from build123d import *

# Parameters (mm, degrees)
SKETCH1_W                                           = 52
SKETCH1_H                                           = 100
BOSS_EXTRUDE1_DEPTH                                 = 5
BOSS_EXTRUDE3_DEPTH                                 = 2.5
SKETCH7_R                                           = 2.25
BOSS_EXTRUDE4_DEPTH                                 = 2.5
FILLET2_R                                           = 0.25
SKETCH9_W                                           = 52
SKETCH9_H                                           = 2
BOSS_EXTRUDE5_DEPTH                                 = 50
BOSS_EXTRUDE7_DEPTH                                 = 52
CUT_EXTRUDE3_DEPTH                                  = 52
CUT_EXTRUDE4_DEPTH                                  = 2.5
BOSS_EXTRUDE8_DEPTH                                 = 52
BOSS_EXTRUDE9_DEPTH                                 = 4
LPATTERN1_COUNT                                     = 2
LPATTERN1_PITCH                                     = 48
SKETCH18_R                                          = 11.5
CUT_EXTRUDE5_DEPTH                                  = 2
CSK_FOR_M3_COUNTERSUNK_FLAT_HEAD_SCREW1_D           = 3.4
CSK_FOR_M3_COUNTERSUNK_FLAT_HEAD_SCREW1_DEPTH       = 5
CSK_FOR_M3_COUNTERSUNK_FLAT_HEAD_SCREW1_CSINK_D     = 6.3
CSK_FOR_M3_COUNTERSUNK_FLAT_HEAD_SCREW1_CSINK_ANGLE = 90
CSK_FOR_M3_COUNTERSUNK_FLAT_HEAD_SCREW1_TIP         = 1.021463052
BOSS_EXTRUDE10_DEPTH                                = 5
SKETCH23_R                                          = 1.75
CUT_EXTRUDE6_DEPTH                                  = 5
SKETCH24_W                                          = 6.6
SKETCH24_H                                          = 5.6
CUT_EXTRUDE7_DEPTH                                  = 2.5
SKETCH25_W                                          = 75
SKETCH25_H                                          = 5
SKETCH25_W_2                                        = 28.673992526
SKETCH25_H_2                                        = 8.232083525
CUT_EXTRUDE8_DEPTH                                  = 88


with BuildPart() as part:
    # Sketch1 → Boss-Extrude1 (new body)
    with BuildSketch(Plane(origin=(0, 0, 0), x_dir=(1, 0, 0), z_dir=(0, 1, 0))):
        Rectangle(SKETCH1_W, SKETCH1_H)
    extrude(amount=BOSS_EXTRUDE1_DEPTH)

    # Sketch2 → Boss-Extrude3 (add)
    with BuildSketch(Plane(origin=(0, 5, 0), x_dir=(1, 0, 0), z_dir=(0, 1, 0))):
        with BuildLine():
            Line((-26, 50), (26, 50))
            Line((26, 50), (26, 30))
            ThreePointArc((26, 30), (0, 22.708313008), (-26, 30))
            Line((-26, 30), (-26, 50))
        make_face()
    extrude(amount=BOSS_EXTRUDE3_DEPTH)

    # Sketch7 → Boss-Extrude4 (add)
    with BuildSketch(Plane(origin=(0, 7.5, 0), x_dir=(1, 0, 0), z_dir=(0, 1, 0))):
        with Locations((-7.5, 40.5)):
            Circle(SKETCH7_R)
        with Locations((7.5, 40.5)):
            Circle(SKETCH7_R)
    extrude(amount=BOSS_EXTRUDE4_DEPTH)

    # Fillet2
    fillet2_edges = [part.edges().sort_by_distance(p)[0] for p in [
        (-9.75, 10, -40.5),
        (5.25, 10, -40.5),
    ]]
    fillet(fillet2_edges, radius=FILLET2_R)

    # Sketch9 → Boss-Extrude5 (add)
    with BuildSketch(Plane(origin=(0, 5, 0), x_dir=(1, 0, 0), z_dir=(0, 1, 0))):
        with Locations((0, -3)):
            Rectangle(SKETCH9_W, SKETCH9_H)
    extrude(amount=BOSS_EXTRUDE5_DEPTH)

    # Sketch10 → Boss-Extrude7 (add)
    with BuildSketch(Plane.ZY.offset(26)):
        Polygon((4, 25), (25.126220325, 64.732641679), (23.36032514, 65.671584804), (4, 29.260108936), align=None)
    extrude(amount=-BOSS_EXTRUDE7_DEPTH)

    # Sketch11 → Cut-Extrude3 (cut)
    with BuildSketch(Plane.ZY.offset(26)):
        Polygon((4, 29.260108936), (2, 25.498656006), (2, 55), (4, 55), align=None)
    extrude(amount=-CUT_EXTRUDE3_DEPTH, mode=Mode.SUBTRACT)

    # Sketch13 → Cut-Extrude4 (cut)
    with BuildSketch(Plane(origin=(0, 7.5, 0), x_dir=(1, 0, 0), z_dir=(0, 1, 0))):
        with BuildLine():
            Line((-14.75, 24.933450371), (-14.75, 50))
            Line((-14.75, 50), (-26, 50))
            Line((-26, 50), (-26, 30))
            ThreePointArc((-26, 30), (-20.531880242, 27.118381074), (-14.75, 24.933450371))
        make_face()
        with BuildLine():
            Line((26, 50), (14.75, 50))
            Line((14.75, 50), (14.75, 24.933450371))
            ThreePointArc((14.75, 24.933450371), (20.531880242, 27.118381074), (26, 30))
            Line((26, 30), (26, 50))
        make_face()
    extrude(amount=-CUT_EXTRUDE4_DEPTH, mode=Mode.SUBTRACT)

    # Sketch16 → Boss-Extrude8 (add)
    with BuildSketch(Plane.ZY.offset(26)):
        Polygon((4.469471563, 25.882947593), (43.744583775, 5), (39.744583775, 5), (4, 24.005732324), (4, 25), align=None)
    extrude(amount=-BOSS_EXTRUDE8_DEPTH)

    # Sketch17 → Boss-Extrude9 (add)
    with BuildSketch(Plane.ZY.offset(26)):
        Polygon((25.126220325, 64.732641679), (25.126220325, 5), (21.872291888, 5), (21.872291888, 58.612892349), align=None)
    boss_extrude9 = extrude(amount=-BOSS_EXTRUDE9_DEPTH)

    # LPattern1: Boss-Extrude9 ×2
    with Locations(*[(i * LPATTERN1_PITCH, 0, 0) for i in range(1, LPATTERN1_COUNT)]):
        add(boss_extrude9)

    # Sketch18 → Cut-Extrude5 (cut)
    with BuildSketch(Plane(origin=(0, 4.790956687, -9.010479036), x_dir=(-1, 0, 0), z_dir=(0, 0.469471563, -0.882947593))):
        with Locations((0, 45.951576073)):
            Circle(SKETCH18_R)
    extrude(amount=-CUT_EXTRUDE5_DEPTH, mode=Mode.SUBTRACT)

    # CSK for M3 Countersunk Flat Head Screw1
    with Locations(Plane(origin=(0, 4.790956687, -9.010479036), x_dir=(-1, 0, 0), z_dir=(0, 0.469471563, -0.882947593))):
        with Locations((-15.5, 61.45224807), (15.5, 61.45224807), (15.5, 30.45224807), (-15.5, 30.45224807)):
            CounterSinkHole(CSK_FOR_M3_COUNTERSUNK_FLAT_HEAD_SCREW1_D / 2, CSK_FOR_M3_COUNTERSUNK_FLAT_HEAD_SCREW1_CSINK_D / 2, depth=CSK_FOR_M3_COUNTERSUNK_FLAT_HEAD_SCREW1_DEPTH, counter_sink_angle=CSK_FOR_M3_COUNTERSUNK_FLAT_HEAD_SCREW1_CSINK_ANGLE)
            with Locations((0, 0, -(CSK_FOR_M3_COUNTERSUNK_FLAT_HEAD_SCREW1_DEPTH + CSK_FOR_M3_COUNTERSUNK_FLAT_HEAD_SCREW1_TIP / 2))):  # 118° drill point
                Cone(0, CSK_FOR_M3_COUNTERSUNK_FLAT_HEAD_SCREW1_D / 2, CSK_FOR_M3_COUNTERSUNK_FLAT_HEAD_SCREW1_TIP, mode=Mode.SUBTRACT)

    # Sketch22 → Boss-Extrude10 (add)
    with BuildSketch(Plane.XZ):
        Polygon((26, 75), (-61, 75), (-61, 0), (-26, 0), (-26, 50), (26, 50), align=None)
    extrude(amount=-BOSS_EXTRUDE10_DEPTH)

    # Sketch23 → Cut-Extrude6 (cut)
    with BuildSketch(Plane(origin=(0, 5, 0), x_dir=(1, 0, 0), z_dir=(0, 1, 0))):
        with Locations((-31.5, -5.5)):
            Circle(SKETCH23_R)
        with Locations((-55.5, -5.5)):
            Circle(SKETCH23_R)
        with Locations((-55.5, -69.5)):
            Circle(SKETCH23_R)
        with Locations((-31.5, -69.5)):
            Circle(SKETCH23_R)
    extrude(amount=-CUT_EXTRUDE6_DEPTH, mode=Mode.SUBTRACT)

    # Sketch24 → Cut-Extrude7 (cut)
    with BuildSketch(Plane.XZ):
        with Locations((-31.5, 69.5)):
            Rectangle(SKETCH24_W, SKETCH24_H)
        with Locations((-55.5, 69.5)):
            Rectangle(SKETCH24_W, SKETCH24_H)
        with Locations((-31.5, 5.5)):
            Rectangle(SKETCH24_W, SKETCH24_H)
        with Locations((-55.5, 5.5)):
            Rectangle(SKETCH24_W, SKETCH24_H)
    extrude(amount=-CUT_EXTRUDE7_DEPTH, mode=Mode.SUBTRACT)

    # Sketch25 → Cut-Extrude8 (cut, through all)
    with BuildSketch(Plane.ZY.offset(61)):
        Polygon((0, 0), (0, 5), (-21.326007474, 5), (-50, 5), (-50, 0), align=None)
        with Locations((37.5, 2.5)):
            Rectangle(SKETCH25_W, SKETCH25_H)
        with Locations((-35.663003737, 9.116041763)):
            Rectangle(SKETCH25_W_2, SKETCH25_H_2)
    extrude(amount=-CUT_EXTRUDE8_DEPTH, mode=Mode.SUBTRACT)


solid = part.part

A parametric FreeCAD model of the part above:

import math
import FreeCAD as App
import Part
import Sketcher
from FreeCAD import Vector
Q = App.Units.Quantity


def edges_at(feature, points):
    """Names of the edges that pass closest to the given points."""
    edges = feature.Shape.Edges
    near = lambda p: min(range(len(edges)), key=lambda i: edges[i].distToShape(Part.Vertex(*p))[0])
    return sorted({f"Edge{near(p) + 1}" for p in points})


def add_polygon(sketch, points):
    """Adds a closed chain of lines whose ends are joined by coincident constraints."""
    first, n = sketch.GeometryCount, len(points)
    for a, b in zip(points, points[1:] + points[:1]):
        sketch.addGeometry(Part.LineSegment(App.Vector(*a, 0), App.Vector(*b, 0)), False)
    for i in range(n):
        sketch.addConstraint(Sketcher.Constraint("Coincident", first + i, 2, first + (i + 1) % n, 1))

doc = App.newDocument("Part")
body = doc.addObject("PartDesign::Body", "Body")

# Sketch on XZ plane
sketch1 = body.newObject("Sketcher::SketchObject", "Sketch")
sketch1.AttachmentSupport = (doc.getObject("XZ_Plane"), [""])
sketch1.MapMode = "FlatFace"
add_polygon(sketch1, [(-26, -50), (-26, 50), (26, 50), (26, -50)])  # lines 0-3
sketch1.addConstraint([
    Sketcher.Constraint("Vertical", 0),
    Sketcher.Constraint("Horizontal", 1),
    Sketcher.Constraint("Vertical", 2),
    Sketcher.Constraint("Horizontal", 3),
    Sketcher.Constraint("Symmetric", 0, 2, 2, 2, -1, 1),
    Sketcher.Constraint("DistanceX", 1, 1, 1, 2, 52.0),
    Sketcher.Constraint("DistanceY", 0, 1, 0, 2, 100.0),
])
pad1 = body.newObject("PartDesign::Pad", "Pad")
pad1.Profile = sketch1
pad1.Length = 5
pad1.Reversed = True

# Sketch on XZ plane
sketch2 = body.newObject("Sketcher::SketchObject", "Sketch001")
sketch2.AttachmentSupport = (doc.getObject("XZ_Plane"), [""])
sketch2.MapMode = "FlatFace"
sketch2.AttachmentOffset = App.Placement(Vector(0, 0, -5), App.Rotation())
sketch2.addGeometry([
    Part.LineSegment(Vector(26, -50, 0), Vector(-26, -50, 0)),
    Part.LineSegment(Vector(-26, -50, 0), Vector(-26, -30, 0)),
    Part.ArcOfCircle(Part.Circle(Vector(0, -73, 0), Vector(0, 0, 1), 50), math.radians(59), math.radians(121)),
    Part.LineSegment(Vector(26, -30, 0), Vector(26, -50, 0)),
], False)
sketch2.addConstraint([
    Sketcher.Constraint("Coincident", 0, 2, 1, 1),
    Sketcher.Constraint("Coincident", 1, 2, 2, 2),
    Sketcher.Constraint("Coincident", 2, 1, 3, 1),
    Sketcher.Constraint("Coincident", 3, 2, 0, 1),
    Sketcher.Constraint("Horizontal", 0),
    Sketcher.Constraint("Vertical", 1),
    Sketcher.Constraint("Vertical", 3),
    Sketcher.Constraint("Symmetric", 1, 2, 2, 1, -2),
    Sketcher.Constraint("Radius", 2, 50.0),
    Sketcher.Constraint("DistanceX", 0, 2, 0, 1, 52.0),
    Sketcher.Constraint("DistanceY", 1, 1, 1, 2, 20.0),
    Sketcher.Constraint("DistanceY", 0, 2, -1, 1, 50.0),
])
pad2 = body.newObject("PartDesign::Pad", "Pad001")
pad2.Profile = sketch2
pad2.Length = 2.5
pad2.Reversed = True

# Sketch on XZ plane
sketch3 = body.newObject("Sketcher::SketchObject", "Sketch002")
sketch3.AttachmentSupport = (doc.getObject("XZ_Plane"), [""])
sketch3.MapMode = "FlatFace"
sketch3.AttachmentOffset = App.Placement(Vector(0, 0, -7.5), App.Rotation())
sketch3.addGeometry([
    Part.Circle(Vector(-7.5, -40.5, 0), Vector(0, 0, 1), 2.2),
    Part.Circle(Vector(7.5, -40.5, 0), Vector(0, 0, 1), 2.2),
], False)
sketch3.addConstraint([
    Sketcher.Constraint("Equal", 0, 1),
    Sketcher.Constraint("Symmetric", 0, 3, 1, 3, -2),
    Sketcher.Constraint("Diameter", 0, 4.5),
    Sketcher.Constraint("DistanceX", 0, 3, 1, 3, 15.0),
    Sketcher.Constraint("DistanceY", 0, 3, -1, 1, 40.5),
])
pad3 = body.newObject("PartDesign::Pad", "Pad002")
pad3.Profile = sketch3
pad3.Length = 2.5
pad3.Reversed = True
doc.recompute()

fillet = body.newObject("PartDesign::Fillet", "Fillet")
fillet.Base = (pad3, edges_at(pad3, [(-9.75, 10, -40.5), (5.25, 10, -40.5)]))
fillet.Radius = 0.25

# Sketch on XZ plane
sketch4 = body.newObject("Sketcher::SketchObject", "Sketch003")
sketch4.AttachmentSupport = (doc.getObject("XZ_Plane"), [""])
sketch4.MapMode = "FlatFace"
sketch4.AttachmentOffset = App.Placement(Vector(0, 0, -5), App.Rotation())
add_polygon(sketch4, [(-26, 2), (-26, 4), (26, 4), (26, 2)])  # lines 0-3
sketch4.addConstraint([
    Sketcher.Constraint("Vertical", 0),
    Sketcher.Constraint("Horizontal", 1),
    Sketcher.Constraint("Vertical", 2),
    Sketcher.Constraint("Horizontal", 3),
    Sketcher.Constraint("DistanceX", 1, 1, 1, 2, 52.0),
    Sketcher.Constraint("DistanceY", 0, 1, 0, 2, 2.0),
    Sketcher.Constraint("DistanceX", 0, 2, -1, 1, 26.0),
    Sketcher.Constraint("DistanceY", -1, 1, 0, 2, 4.0),
])
pad4 = body.newObject("PartDesign::Pad", "Pad003")
pad4.Profile = sketch4
pad4.Length = 50
pad4.Reversed = True

# Sketch on YZ plane
sketch5 = body.newObject("Sketcher::SketchObject", "Sketch004")
sketch5.AttachmentSupport = (doc.getObject("YZ_Plane"), [""])
sketch5.MapMode = "FlatFace"
sketch5.AttachmentOffset = App.Placement(Vector(0, 0, -26), App.Rotation())
add_polygon(sketch5, [(25, 4), (64.7, 25.1), (65.7, 23.4), (29.3, 4)])  # lines 0-3
sketch5.addConstraint([
    Sketcher.Constraint("Horizontal", 3),
    Sketcher.Constraint("Perpendicular", 0, 1),
    Sketcher.Constraint("Perpendicular", 1, 2),
    Sketcher.Constraint("Angle", 0, Q("28 deg")),
    Sketcher.Constraint("Distance", 0, 45.0),
    Sketcher.Constraint("Distance", 1, 2.0),
    Sketcher.Constraint("DistanceY", -1, 1, 2, 2, 4.0),
    Sketcher.Constraint("DistanceX", -1, 1, 3, 2, 25.0),
])
pad5 = body.newObject("PartDesign::Pad", "Pad004")
pad5.Profile = sketch5
pad5.Length = 52

# Sketch on YZ plane
sketch6 = body.newObject("Sketcher::SketchObject", "Sketch005")
sketch6.AttachmentSupport = (doc.getObject("YZ_Plane"), [""])
sketch6.MapMode = "FlatFace"
sketch6.AttachmentOffset = App.Placement(Vector(0, 0, -26), App.Rotation())
add_polygon(sketch6, [(25.5, 2), (29.3, 4), (55, 4), (55, 2)])  # lines 0-3
sketch6.addConstraint([
    Sketcher.Constraint("Horizontal", 1),
    Sketcher.Constraint("Vertical", 2),
    Sketcher.Constraint("Horizontal", 3),
    Sketcher.Constraint("DistanceY", 2, 2, 2, 1, 2.0),
    Sketcher.Constraint("Angle", 0, Q("28 deg")),
    Sketcher.Constraint("DistanceY", -1, 1, 0, 2, 4.0),
    Sketcher.Constraint("DistanceX", -1, 1, 1, 2, 55.0),
    Sketcher.Constraint("DistanceX", 1, 1, 1, 2, 25.739891),
])
pocket1 = body.newObject("PartDesign::Pocket", "Pocket")
pocket1.Profile = sketch6
pocket1.Length = 52
pocket1.Reversed = True

# Sketch on XZ plane
sketch7 = body.newObject("Sketcher::SketchObject", "Sketch006")
sketch7.AttachmentSupport = (doc.getObject("XZ_Plane"), [""])
sketch7.MapMode = "FlatFace"
sketch7.AttachmentOffset = App.Placement(Vector(0, 0, -7.5), App.Rotation())
sketch7.addGeometry([
    Part.LineSegment(Vector(-15, -25, 0), Vector(-15, -50, 0)),  # 0
    Part.LineSegment(Vector(-15, -50, 0), Vector(-26, -50, 0)),  # 1
    Part.LineSegment(Vector(-26, -50, 0), Vector(-26, -30, 0)),  # 2
    Part.ArcOfCircle(Part.Circle(Vector(0, -73, 0), Vector(0, 0, 1), 50), math.radians(107.16), math.radians(121.33)),  # 3
    Part.LineSegment(Vector(26, -50, 0), Vector(15, -50, 0)),  # 4
    Part.LineSegment(Vector(15, -50, 0), Vector(15, -25, 0)),  # 5
    Part.ArcOfCircle(Part.Circle(Vector(0, -73, 0), Vector(0, 0, 1), 50), math.radians(58.67), math.radians(72.84)),  # 6
    Part.LineSegment(Vector(26, -30, 0), Vector(26, -50, 0)),  # 7
], False)
sketch7.addConstraint([
    Sketcher.Constraint("Coincident", 0, 2, 1, 1),
    Sketcher.Constraint("Coincident", 1, 2, 2, 1),
    Sketcher.Constraint("Coincident", 2, 2, 3, 2),
    Sketcher.Constraint("Coincident", 3, 1, 0, 1),
    Sketcher.Constraint("Coincident", 4, 2, 5, 1),
    Sketcher.Constraint("Coincident", 5, 2, 6, 2),
    Sketcher.Constraint("Coincident", 6, 1, 7, 1),
    Sketcher.Constraint("Coincident", 7, 2, 4, 1),
    Sketcher.Constraint("Vertical", 0),
    Sketcher.Constraint("Horizontal", 1),
    Sketcher.Constraint("Vertical", 2),
    Sketcher.Constraint("Horizontal", 4),
    Sketcher.Constraint("Vertical", 5),
    Sketcher.Constraint("Vertical", 7),
    Sketcher.Constraint("Coincident", 6, 3, 3, 3),
    Sketcher.Constraint("Equal", 3, 6),
    Sketcher.Constraint("Symmetric", 0, 2, 4, 2, -2),
    Sketcher.Constraint("Symmetric", 2, 2, 6, 1, -2),
    Sketcher.Constraint("Radius", 3, 50.0),
    Sketcher.Constraint("DistanceY", 2, 1, 2, 2, 20.0),
    Sketcher.Constraint("DistanceY", 0, 2, -1, 1, 50.0),
    Sketcher.Constraint("DistanceX", 1, 2, -1, 1, 26.0),
    Sketcher.Constraint("DistanceX", 1, 2, 1, 1, 11.25),
])
pocket2 = body.newObject("PartDesign::Pocket", "Pocket001")
pocket2.Profile = sketch7
pocket2.Length = 2.5
pocket2.Reversed = True

# Sketch on YZ plane
sketch8 = body.newObject("Sketcher::SketchObject", "Sketch007")
sketch8.AttachmentSupport = (doc.getObject("YZ_Plane"), [""])
sketch8.MapMode = "FlatFace"
sketch8.AttachmentOffset = App.Placement(Vector(0, 0, -26), App.Rotation())
add_polygon(sketch8, [(5, 43.7), (25.9, 4.5), (25, 4), (24, 4), (5, 39.7)])  # lines 0-4
sketch8.addConstraint([
    Sketcher.Constraint("Horizontal", 2),
    Sketcher.Constraint("Vertical", 4),
    Sketcher.Constraint("Perpendicular", 0, 1),
    Sketcher.Constraint("Perpendicular", 1, 3),
    Sketcher.Constraint("DistanceY", 4, 1, 4, 2, 4.0),
    Sketcher.Constraint("Angle", 0, Q("-62 deg")),
    Sketcher.Constraint("Distance", 1, 1.0),
    Sketcher.Constraint("DistanceX", -1, 1, 1, 2, 25.0),
    Sketcher.Constraint("DistanceY", -1, 1, 1, 2, 4.0),
    Sketcher.Constraint("DistanceX", -1, 1, 3, 2, 5.0),
])
pad6 = body.newObject("PartDesign::Pad", "Pad005")
pad6.Profile = sketch8
pad6.Length = 52

# Sketch on YZ plane
sketch9 = body.newObject("Sketcher::SketchObject", "Sketch008")
sketch9.AttachmentSupport = (doc.getObject("YZ_Plane"), [""])
sketch9.MapMode = "FlatFace"
sketch9.AttachmentOffset = App.Placement(Vector(0, 0, -26), App.Rotation())
add_polygon(sketch9, [(5, 25.1), (64.7, 25.1), (58.6, 21.9), (5, 21.9)])  # lines 0-3
sketch9.addConstraint([
    Sketcher.Constraint("Horizontal", 0),
    Sketcher.Constraint("Horizontal", 2),
    Sketcher.Constraint("Vertical", 3),
    Sketcher.Constraint("Angle", 1, Q("-152 deg")),
    Sketcher.Constraint("DistanceX", -1, 1, 2, 2, 5.0),
    Sketcher.Constraint("DistanceX", 0, 1, 0, 2, 59.732642),
    Sketcher.Constraint("DistanceY", 3, 1, 3, 2, 3.253928),
    Sketcher.Constraint("DistanceY", -1, 1, 0, 2, 25.12622),
])
pad7 = body.newObject("PartDesign::Pad", "Pad006")
pad7.Profile = sketch9
pad7.Length = 4
doc.recompute()

linearpattern = body.newObject("PartDesign::LinearPattern", "LinearPattern")
linearpattern.Originals = [pad7]
linearpattern.Direction = (doc.getObject("X_Axis"), [""])
linearpattern.Mode = "offset"
linearpattern.Offset = 48
linearpattern.Occurrences = 2
body.Tip = linearpattern

# Sketch on an angled plane
sketch10 = body.newObject("Sketcher::SketchObject", "Sketch009")
sketch10.Placement = App.Placement(Vector(0, 4.790957, -9.010479), App.Rotation(Vector(-1, 0, 0), Vector(0, 0.882947593, 0.469471563), Vector(0, 0.469471563, -0.882947593), "ZXY"))
sketch10.addGeometry(Part.Circle(Vector(0, 46, 0), Vector(0, 0, 1), 12), False)
sketch10.addConstraint([
    Sketcher.Constraint("PointOnObject", 0, 3, -2),
    Sketcher.Constraint("Diameter", 0, 23.0),
    Sketcher.Constraint("DistanceY", -1, 1, 0, 3, 45.951576),
])
pocket3 = body.newObject("PartDesign::Pocket", "Pocket002")
pocket3.Profile = sketch10
pocket3.Length = 2

# Sketch on an angled plane
sketch11 = body.newObject("Sketcher::SketchObject", "Sketch010")
sketch11.Placement = App.Placement(Vector(0, 4.790957, -9.010479), App.Rotation(Vector(-1, 0, 0), Vector(0, 0.882947593, 0.469471563), Vector(0, 0.469471563, -0.882947593), "ZXY"))
sketch11.addGeometry([
    Part.Circle(Vector(-15.5, 61.5, 0), Vector(0, 0, 1), 1.7),
    Part.Circle(Vector(15.5, 61.5, 0), Vector(0, 0, 1), 1.7),
    Part.Circle(Vector(15.5, 30.5, 0), Vector(0, 0, 1), 1.7),
    Part.Circle(Vector(-15.5, 30.5, 0), Vector(0, 0, 1), 1.7),
], False)
sketch11.addConstraint([
    Sketcher.Constraint("Equal", 0, 1),
    Sketcher.Constraint("Equal", 1, 2),
    Sketcher.Constraint("Equal", 2, 3),
    Sketcher.Constraint("Symmetric", 0, 3, 1, 3, -2),
    Sketcher.Constraint("Symmetric", 2, 3, 3, 3, -2),
    Sketcher.Constraint("Vertical", 1, 3, 2, 3),
    Sketcher.Constraint("Diameter", 0, 3.4),
    Sketcher.Constraint("DistanceX", 0, 3, 1, 3, 31.0),
    Sketcher.Constraint("DistanceY", 2, 3, 1, 3, 31.0),
    Sketcher.Constraint("DistanceY", -1, 1, 0, 3, 61.452248),
])
doc.recompute()
hole = body.newObject("PartDesign::Hole", "Hole")
hole.Profile = sketch11
hole.ThreadType = "None"
hole.Diameter = 3.4
hole.DepthType = "Dimension"
hole.Depth = 5
hole.DrillPoint = "Angled"
hole.DrillPointAngle = 118
hole.HoleCutType = "Countersink"
hole.HoleCutDiameter = 6.3
hole.HoleCutCountersinkAngle = 90

# Sketch on XZ plane
sketch12 = body.newObject("Sketcher::SketchObject", "Sketch011")
sketch12.AttachmentSupport = (doc.getObject("XZ_Plane"), [""])
sketch12.MapMode = "FlatFace"
add_polygon(sketch12, [(26, 75), (-61, 75), (-61, 0), (-26, 0), (-26, 50), (26, 50)])  # lines 0-5
sketch12.addConstraint([
    Sketcher.Constraint("Horizontal", 0),
    Sketcher.Constraint("Vertical", 1),
    Sketcher.Constraint("Horizontal", 2),
    Sketcher.Constraint("Vertical", 3),
    Sketcher.Constraint("Horizontal", 4),
    Sketcher.Constraint("Vertical", 5),
    Sketcher.Constraint("PointOnObject", 1, 2, -1),
    Sketcher.Constraint("DistanceX", 0, 2, 0, 1, 87.0),
    Sketcher.Constraint("DistanceX", 2, 1, 2, 2, 35.0),
    Sketcher.Constraint("DistanceY", 1, 2, 1, 1, 75.0),
    Sketcher.Constraint("DistanceY", 3, 1, 3, 2, 50.0),
    Sketcher.Constraint("DistanceX", 0, 2, -1, 1, 61.0),
])
pad8 = body.newObject("PartDesign::Pad", "Pad007")
pad8.Profile = sketch12
pad8.Length = 5
pad8.Reversed = True

# Sketch on XZ plane
sketch13 = body.newObject("Sketcher::SketchObject", "Sketch012")
sketch13.AttachmentSupport = (doc.getObject("XZ_Plane"), [""])
sketch13.MapMode = "FlatFace"
sketch13.AttachmentOffset = App.Placement(Vector(0, 0, -5), App.Rotation())
sketch13.addGeometry([
    Part.Circle(Vector(-31.5, 5.5, 0), Vector(0, 0, 1), 1.8),
    Part.Circle(Vector(-55.5, 5.5, 0), Vector(0, 0, 1), 1.8),
    Part.Circle(Vector(-55.5, 69.5, 0), Vector(0, 0, 1), 1.8),
    Part.Circle(Vector(-31.5, 69.5, 0), Vector(0, 0, 1), 1.8),
], False)
sketch13.addConstraint([
    Sketcher.Constraint("Equal", 0, 1),
    Sketcher.Constraint("Equal", 1, 2),
    Sketcher.Constraint("Equal", 2, 3),
    Sketcher.Constraint("Horizontal", 0, 3, 1, 3),
    Sketcher.Constraint("Horizontal", 2, 3, 3, 3),
    Sketcher.Constraint("Vertical", 1, 3, 2, 3),
    Sketcher.Constraint("Vertical", 0, 3, 3, 3),
    Sketcher.Constraint("Diameter", 0, 3.5),
    Sketcher.Constraint("DistanceX", 1, 3, 0, 3, 24.0),
    Sketcher.Constraint("DistanceY", 1, 3, 2, 3, 64.0),
    Sketcher.Constraint("DistanceX", 0, 3, -1, 1, 31.5),
    Sketcher.Constraint("DistanceY", -1, 1, 0, 3, 5.5),
])
pocket4 = body.newObject("PartDesign::Pocket", "Pocket003")
pocket4.Profile = sketch13
pocket4.Length = 5
pocket4.Reversed = True

# Sketch on XZ plane
sketch14 = body.newObject("Sketcher::SketchObject", "Sketch013")
sketch14.AttachmentSupport = (doc.getObject("XZ_Plane"), [""])
sketch14.MapMode = "FlatFace"
add_polygon(sketch14, [(-35, 72), (-35, 67), (-28, 67), (-28, 72)])  # lines 0-3
add_polygon(sketch14, [(-59, 72), (-59, 67), (-52, 67), (-52, 72)])  # lines 4-7
add_polygon(sketch14, [(-35, 8), (-35, 3), (-28, 3), (-28, 8)])  # lines 8-11
add_polygon(sketch14, [(-59, 8), (-59, 3), (-52, 3), (-52, 8)])  # lines 12-15
sketch14.addConstraint([
    Sketcher.Constraint("Vertical", 0),
    Sketcher.Constraint("Horizontal", 1),
    Sketcher.Constraint("Vertical", 2),
    Sketcher.Constraint("Horizontal", 3),
    Sketcher.Constraint("Vertical", 4),
    Sketcher.Constraint("Horizontal", 5),
    Sketcher.Constraint("Vertical", 6),
    Sketcher.Constraint("Horizontal", 7),
    Sketcher.Constraint("Vertical", 8),
    Sketcher.Constraint("Horizontal", 9),
    Sketcher.Constraint("Vertical", 10),
    Sketcher.Constraint("Horizontal", 11),
    Sketcher.Constraint("Vertical", 12),
    Sketcher.Constraint("Horizontal", 13),
    Sketcher.Constraint("Vertical", 14),
    Sketcher.Constraint("Horizontal", 15),
    Sketcher.Constraint("Horizontal", 1, 2, 4, 2),
    Sketcher.Constraint("Horizontal", 3, 2, 6, 2),
    Sketcher.Constraint("Horizontal", 9, 2, 12, 2),
    Sketcher.Constraint("Horizontal", 11, 2, 14, 2),
    Sketcher.Constraint("Vertical", 3, 2, 8, 2),
    Sketcher.Constraint("Vertical", 2, 2, 9, 2),
    Sketcher.Constraint("Vertical", 7, 2, 12, 2),
    Sketcher.Constraint("Vertical", 6, 2, 13, 2),
    Sketcher.Constraint("Equal", 3, 5),
    Sketcher.Constraint("Equal", 6, 8),
    Sketcher.Constraint("DistanceX", 1, 1, 1, 2, 6.6),
    Sketcher.Constraint("DistanceY", 0, 2, 0, 1, 5.6),
    Sketcher.Constraint("DistanceX", 4, 2, 0, 2, 24.0),
    Sketcher.Constraint("DistanceY", 8, 2, 0, 2, 64.0),
    Sketcher.Constraint("DistanceX", 0, 2, -1, 1, 34.8),
    Sketcher.Constraint("DistanceY", -1, 1, 0, 2, 66.7),
])
pocket5 = body.newObject("PartDesign::Pocket", "Pocket004")
pocket5.Profile = sketch14
pocket5.Length = 2.5

# Sketch on YZ plane
sketch15 = body.newObject("Sketcher::SketchObject", "Sketch014")
sketch15.AttachmentSupport = (doc.getObject("YZ_Plane"), [""])
sketch15.MapMode = "FlatFace"
sketch15.AttachmentOffset = App.Placement(Vector(0, 0, -61), App.Rotation())
add_polygon(sketch15, [(0, -50), (0, 75), (5, 75), (5, -21), (13, -21), (13, -50)])  # lines 0-5
sketch15.addConstraint([
    Sketcher.Constraint("Vertical", 0),
    Sketcher.Constraint("Horizontal", 1),
    Sketcher.Constraint("Vertical", 2),
    Sketcher.Constraint("Horizontal", 3),
    Sketcher.Constraint("Vertical", 4),
    Sketcher.Constraint("Horizontal", 5),
    Sketcher.Constraint("PointOnObject", 0, 2, -2),
    Sketcher.Constraint("DistanceX", 1, 1, 1, 2, 5.0),
    Sketcher.Constraint("DistanceY", 0, 1, 0, 2, 125.0),
    Sketcher.Constraint("DistanceY", -1, 1, 0, 2, 75.0),
    Sketcher.Constraint("DistanceX", 3, 1, 3, 2, 8.232084),
    Sketcher.Constraint("DistanceY", 2, 2, 2, 1, 96.326007),
])
pocket6 = body.newObject("PartDesign::Pocket", "Pocket005")
pocket6.Profile = sketch15
pocket6.Type = "ThroughAll"
pocket6.Reversed = True

doc.recompute()
